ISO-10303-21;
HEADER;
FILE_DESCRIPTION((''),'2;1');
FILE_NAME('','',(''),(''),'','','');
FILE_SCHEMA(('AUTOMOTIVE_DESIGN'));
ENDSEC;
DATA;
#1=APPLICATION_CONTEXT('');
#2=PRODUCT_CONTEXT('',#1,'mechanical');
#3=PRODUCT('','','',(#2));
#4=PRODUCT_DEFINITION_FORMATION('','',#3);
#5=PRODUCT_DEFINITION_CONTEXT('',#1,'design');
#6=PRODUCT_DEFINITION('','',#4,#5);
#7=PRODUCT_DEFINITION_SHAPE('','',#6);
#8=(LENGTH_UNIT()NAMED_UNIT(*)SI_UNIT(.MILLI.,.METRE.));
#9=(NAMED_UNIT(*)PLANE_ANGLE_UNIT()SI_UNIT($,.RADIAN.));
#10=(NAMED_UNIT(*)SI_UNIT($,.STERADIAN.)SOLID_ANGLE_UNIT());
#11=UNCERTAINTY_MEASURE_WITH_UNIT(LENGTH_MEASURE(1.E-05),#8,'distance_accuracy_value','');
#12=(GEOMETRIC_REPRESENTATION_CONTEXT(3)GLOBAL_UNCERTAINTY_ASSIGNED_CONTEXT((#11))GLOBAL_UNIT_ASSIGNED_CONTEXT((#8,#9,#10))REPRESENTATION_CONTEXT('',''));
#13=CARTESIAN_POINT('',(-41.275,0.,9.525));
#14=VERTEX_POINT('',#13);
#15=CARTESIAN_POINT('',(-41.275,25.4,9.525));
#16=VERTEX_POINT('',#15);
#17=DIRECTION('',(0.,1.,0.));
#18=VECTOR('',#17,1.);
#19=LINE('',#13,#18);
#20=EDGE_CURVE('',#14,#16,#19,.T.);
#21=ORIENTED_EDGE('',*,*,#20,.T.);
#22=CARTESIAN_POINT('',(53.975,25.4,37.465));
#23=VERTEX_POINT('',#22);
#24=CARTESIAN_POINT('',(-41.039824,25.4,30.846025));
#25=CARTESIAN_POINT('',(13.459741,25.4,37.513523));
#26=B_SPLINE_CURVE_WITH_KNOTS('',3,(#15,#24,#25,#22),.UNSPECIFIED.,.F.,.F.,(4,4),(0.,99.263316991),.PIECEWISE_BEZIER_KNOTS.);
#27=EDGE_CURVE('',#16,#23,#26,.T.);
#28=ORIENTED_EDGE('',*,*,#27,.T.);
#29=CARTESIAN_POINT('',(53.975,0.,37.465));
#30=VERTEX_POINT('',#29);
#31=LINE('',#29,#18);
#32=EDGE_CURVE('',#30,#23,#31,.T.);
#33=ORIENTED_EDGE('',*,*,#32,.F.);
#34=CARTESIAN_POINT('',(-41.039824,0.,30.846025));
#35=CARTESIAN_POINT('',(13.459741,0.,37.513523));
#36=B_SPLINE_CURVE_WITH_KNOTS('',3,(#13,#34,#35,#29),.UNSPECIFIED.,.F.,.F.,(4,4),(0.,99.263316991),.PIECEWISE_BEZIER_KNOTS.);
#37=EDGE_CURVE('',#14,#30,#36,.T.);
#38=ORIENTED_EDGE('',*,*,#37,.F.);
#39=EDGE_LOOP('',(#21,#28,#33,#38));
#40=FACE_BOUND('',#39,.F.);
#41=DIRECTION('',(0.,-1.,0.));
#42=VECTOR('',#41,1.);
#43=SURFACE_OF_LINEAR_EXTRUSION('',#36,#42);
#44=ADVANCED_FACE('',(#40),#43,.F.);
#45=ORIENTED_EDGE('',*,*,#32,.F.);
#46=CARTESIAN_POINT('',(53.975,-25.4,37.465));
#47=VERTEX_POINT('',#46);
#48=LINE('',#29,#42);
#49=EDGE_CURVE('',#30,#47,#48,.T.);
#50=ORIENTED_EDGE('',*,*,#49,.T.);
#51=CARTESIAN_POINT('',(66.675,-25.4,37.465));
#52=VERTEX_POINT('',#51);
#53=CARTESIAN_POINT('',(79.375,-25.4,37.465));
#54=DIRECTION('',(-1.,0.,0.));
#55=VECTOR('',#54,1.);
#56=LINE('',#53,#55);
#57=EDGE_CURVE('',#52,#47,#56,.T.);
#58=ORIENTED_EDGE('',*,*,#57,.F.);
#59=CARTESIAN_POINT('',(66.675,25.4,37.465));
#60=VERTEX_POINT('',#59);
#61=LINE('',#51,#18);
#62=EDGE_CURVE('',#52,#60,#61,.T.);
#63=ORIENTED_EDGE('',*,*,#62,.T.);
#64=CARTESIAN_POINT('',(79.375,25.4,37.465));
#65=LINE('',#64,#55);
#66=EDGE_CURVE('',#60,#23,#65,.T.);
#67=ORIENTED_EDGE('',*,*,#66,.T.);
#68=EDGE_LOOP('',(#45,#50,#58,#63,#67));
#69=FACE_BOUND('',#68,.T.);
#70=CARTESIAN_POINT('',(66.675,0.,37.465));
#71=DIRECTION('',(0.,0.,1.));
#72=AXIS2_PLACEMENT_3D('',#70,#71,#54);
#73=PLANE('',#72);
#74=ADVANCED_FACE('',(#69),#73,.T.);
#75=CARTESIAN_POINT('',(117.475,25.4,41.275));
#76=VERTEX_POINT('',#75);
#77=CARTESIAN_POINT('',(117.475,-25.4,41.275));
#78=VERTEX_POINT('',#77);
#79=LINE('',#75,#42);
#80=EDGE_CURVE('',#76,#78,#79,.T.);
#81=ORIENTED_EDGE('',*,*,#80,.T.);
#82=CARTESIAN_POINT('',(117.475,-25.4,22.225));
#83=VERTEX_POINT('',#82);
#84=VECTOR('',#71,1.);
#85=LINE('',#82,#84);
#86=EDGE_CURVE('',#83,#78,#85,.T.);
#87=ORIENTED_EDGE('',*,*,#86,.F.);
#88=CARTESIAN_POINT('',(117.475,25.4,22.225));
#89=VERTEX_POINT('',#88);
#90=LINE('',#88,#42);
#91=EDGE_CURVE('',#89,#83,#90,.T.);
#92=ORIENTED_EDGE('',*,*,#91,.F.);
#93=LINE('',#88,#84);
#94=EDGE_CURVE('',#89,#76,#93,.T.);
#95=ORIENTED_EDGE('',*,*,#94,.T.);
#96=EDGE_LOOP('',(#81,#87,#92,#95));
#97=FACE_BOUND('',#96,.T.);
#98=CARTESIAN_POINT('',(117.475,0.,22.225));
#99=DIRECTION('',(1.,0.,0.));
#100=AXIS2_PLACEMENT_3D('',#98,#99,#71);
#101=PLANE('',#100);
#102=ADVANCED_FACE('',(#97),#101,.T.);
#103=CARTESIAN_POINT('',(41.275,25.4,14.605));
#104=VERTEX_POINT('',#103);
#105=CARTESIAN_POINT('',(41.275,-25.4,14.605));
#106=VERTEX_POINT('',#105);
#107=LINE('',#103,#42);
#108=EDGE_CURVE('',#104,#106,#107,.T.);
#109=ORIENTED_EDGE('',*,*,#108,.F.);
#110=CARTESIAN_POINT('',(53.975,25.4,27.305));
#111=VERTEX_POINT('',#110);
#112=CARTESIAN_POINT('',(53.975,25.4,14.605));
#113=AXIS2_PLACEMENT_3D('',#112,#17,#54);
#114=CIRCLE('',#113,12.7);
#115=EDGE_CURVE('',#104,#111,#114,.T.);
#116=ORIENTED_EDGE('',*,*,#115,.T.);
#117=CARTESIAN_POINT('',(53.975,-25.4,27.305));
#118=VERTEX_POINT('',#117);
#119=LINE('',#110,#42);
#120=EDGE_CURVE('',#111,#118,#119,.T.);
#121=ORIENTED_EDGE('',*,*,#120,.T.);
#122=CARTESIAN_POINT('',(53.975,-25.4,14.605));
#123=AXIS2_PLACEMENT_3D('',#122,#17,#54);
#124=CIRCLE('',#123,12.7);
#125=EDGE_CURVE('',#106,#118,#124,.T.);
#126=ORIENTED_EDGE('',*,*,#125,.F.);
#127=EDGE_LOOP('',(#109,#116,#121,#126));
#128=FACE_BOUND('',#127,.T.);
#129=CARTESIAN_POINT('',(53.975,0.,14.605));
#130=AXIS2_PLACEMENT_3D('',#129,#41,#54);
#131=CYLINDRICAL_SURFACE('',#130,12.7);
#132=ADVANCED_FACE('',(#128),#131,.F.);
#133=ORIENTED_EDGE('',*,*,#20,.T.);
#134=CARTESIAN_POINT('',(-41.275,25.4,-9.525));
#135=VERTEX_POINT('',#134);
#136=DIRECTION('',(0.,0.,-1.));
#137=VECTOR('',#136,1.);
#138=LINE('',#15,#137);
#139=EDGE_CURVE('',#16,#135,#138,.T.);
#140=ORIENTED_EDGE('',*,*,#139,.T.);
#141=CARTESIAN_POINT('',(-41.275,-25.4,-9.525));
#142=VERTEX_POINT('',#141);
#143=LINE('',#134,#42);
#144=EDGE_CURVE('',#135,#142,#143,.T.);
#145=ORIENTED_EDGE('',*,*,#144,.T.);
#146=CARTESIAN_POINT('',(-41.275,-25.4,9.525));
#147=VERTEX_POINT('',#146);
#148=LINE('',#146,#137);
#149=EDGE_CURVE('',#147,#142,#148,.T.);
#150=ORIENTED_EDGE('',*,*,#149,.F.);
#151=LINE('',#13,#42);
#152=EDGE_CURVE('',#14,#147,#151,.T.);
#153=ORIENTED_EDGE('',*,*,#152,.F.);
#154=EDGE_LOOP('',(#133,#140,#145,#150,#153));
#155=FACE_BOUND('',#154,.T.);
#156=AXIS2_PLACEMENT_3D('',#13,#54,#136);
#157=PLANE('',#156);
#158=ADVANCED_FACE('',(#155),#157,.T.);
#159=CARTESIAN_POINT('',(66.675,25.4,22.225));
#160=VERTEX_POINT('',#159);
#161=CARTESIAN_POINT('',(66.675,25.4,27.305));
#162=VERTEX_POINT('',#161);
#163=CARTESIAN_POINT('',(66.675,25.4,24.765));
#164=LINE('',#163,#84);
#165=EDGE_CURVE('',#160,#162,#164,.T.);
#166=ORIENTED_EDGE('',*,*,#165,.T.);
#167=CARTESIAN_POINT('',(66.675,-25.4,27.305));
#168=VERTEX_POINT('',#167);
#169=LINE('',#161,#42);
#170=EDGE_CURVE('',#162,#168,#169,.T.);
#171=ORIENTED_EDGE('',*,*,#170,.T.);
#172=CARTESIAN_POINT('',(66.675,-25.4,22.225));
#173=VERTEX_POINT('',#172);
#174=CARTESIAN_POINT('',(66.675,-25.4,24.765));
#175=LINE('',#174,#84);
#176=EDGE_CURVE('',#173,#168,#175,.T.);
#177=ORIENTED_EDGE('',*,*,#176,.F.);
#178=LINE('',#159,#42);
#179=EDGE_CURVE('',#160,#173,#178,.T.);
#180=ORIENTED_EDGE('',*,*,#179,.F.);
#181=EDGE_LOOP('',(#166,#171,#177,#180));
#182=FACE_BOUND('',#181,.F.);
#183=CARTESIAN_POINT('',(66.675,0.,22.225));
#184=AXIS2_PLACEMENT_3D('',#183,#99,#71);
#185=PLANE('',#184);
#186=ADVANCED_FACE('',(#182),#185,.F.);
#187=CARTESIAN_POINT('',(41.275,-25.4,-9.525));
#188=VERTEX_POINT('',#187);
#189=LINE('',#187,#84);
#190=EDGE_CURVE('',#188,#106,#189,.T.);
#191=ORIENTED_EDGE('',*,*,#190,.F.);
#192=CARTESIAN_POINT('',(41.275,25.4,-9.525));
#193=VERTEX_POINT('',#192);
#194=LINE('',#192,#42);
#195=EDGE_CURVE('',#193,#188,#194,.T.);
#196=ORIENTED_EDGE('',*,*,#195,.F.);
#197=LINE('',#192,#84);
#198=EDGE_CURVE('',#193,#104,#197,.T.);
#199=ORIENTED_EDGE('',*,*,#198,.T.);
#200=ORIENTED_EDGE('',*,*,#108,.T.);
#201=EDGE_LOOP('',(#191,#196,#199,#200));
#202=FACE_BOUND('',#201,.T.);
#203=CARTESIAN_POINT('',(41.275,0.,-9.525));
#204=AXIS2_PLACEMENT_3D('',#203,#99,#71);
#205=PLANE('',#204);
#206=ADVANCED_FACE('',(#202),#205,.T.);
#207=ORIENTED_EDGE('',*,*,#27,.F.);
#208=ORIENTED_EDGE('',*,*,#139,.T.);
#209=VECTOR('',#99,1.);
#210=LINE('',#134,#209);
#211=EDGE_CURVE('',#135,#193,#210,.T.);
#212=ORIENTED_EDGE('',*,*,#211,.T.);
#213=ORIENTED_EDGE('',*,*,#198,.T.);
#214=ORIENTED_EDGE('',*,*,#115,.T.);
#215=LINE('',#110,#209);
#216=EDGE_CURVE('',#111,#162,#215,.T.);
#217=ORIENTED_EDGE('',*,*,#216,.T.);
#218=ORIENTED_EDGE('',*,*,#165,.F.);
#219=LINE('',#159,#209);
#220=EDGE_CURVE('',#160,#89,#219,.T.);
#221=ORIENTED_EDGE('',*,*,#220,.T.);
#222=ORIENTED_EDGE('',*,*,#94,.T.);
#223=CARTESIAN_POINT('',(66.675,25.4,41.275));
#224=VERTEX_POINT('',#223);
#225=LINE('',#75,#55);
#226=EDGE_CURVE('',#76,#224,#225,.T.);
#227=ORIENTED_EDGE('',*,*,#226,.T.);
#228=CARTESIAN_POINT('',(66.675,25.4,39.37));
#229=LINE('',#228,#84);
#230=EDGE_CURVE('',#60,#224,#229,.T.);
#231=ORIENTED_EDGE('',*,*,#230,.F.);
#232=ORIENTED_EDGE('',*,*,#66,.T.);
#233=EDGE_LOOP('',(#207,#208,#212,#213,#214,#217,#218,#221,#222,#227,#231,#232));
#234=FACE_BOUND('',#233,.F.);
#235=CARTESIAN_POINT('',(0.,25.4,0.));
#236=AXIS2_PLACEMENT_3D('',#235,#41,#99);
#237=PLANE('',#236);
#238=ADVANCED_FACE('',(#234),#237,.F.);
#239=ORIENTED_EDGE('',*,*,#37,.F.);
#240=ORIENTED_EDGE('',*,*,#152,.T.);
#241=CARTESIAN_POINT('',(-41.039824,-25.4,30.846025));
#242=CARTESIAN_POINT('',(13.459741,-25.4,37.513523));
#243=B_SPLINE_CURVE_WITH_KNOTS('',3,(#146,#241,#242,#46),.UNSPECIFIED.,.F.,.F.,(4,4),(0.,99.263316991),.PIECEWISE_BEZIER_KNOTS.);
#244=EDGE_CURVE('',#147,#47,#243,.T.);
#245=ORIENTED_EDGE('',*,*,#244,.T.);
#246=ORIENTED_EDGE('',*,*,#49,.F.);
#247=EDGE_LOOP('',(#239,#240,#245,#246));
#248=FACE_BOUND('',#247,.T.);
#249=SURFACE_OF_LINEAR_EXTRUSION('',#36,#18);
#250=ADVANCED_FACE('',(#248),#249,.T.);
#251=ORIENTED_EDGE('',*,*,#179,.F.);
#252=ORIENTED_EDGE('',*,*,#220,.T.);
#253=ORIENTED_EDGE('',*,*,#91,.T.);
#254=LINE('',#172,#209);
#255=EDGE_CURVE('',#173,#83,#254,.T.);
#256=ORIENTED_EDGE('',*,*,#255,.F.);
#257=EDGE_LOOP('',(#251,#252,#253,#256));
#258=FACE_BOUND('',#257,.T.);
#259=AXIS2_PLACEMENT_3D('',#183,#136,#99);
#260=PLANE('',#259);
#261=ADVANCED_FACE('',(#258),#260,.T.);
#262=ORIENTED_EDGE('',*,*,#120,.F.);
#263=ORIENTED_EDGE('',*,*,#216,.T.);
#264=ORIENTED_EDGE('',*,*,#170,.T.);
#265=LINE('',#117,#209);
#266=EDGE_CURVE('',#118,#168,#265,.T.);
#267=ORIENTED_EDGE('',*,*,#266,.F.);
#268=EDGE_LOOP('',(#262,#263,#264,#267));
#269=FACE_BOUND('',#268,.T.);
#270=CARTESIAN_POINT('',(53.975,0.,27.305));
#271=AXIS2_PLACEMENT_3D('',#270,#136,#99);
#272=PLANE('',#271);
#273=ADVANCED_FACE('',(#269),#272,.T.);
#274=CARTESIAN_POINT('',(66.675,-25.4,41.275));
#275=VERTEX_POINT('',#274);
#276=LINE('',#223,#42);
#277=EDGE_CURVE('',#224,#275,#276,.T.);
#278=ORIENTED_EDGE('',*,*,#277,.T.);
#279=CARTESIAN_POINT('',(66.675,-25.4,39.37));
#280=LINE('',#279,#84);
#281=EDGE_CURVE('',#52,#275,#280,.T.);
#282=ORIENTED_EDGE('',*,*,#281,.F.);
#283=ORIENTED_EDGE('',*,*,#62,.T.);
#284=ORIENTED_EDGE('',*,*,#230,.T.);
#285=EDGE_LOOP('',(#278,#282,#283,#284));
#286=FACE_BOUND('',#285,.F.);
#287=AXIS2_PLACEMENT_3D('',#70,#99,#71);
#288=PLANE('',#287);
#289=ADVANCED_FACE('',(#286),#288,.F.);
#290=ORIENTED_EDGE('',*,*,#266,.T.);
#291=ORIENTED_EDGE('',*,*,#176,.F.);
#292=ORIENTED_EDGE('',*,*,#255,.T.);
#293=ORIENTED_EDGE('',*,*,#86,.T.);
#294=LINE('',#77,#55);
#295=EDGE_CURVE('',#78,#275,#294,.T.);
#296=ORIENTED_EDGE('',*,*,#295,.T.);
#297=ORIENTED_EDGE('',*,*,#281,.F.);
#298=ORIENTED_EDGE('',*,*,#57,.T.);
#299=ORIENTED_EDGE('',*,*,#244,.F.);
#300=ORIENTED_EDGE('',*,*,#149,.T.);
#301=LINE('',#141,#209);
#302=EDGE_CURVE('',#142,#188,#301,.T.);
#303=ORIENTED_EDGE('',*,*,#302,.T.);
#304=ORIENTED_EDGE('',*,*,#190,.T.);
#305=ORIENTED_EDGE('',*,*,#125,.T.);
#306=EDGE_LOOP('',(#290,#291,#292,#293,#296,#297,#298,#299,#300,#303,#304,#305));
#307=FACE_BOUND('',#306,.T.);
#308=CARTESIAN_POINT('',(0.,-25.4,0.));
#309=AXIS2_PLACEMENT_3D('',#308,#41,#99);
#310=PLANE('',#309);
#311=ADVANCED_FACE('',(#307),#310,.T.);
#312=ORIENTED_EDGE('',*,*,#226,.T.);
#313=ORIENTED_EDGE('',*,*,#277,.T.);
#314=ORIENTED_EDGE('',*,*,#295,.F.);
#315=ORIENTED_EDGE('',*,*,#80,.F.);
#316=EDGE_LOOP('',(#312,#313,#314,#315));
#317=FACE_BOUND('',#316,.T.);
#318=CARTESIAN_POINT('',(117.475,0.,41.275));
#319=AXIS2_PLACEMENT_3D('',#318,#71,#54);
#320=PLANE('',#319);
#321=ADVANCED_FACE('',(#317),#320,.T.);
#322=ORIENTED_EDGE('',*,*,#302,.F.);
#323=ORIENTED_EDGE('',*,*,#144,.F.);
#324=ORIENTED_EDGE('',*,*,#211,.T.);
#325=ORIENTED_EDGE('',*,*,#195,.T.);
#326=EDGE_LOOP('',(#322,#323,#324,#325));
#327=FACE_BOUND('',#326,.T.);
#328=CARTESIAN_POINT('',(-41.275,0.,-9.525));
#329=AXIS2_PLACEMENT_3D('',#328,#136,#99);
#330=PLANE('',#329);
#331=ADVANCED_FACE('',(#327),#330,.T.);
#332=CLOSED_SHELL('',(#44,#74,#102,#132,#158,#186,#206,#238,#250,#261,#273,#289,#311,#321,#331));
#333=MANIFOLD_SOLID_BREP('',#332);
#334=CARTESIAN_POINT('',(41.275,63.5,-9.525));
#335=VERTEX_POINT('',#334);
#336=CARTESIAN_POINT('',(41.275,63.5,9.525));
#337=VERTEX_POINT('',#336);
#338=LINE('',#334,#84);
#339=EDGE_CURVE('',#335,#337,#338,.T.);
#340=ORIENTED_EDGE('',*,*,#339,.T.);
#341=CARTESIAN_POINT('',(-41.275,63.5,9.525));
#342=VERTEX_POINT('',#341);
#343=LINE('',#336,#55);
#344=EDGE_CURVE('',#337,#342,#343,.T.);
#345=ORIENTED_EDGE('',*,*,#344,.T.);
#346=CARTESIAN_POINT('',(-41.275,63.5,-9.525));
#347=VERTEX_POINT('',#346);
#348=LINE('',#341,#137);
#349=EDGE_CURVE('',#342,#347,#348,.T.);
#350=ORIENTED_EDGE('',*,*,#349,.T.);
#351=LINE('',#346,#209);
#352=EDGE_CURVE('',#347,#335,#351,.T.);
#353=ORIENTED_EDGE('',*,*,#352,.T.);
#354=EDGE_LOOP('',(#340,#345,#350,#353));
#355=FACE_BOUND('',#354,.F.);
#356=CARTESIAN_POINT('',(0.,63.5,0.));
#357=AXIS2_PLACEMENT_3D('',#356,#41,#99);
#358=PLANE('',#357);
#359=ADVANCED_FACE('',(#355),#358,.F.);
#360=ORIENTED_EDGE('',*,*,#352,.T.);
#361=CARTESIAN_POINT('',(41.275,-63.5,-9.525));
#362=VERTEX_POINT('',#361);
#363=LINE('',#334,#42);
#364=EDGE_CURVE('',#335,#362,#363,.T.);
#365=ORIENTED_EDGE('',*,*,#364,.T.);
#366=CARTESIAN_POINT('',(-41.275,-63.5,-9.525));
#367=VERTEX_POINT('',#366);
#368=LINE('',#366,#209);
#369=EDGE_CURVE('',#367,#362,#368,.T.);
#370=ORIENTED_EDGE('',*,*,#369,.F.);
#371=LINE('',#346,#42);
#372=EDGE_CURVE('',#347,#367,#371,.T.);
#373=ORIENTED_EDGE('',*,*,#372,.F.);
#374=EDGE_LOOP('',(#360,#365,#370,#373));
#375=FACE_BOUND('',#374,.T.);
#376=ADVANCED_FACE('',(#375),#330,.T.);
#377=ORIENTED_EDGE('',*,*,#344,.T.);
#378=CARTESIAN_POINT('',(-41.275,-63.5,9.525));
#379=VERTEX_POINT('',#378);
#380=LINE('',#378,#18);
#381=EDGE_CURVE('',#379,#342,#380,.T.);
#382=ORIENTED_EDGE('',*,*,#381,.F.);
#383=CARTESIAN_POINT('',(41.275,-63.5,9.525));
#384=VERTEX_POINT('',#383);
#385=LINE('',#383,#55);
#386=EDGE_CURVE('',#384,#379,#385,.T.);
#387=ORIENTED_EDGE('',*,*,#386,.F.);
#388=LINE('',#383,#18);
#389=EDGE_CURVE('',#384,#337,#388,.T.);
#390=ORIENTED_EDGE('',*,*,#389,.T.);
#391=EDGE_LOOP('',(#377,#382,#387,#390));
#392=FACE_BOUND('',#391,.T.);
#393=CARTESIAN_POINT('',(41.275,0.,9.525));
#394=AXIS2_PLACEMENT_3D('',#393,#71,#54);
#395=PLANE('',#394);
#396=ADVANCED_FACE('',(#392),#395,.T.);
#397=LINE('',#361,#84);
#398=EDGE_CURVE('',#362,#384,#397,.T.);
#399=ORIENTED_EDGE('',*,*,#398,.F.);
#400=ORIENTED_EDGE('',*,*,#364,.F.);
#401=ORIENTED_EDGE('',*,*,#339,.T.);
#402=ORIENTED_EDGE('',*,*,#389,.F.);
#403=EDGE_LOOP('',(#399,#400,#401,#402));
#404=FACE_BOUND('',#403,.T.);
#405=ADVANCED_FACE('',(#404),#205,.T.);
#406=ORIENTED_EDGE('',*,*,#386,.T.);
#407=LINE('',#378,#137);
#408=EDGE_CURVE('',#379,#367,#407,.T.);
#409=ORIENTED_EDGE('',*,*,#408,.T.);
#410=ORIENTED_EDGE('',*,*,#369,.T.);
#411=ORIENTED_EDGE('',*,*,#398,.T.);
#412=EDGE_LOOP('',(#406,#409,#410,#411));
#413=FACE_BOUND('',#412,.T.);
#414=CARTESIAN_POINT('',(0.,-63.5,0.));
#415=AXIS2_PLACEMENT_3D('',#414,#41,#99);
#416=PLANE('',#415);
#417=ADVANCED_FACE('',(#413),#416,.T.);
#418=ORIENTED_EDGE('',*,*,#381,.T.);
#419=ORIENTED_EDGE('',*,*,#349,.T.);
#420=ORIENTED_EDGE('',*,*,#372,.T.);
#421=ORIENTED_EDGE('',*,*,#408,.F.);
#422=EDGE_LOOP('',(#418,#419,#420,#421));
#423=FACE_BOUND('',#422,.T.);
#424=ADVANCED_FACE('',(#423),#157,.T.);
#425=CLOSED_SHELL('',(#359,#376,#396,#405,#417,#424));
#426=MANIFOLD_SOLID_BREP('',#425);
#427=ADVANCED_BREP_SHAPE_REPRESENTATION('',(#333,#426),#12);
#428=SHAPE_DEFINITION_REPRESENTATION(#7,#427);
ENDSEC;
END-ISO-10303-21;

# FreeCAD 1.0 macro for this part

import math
import FreeCAD as App
import Part
import Sketcher
from FreeCAD import Vector
Q = App.Units.Quantity

doc = App.newDocument("Part")
body = doc.addObject("PartDesign::Body", "Body")

# Sketch on XZ plane
sketch1 = doc.addObject("Sketcher::SketchObject", "Sketch")
body.addObject(sketch1)
sketch1.AttachmentSupport = (doc.XZ_Plane, [""])
sketch1.MapMode = "FlatFace"
sketch1.addGeometry([
    Part.LineSegment(Vector(-41, 10, 0), Vector(-41, -10, 0)),
    Part.LineSegment(Vector(-41, -10, 0), Vector(41, -10, 0)),
    Part.LineSegment(Vector(41, -10, 0), Vector(41, 10, 0)),
    Part.LineSegment(Vector(41, 10, 0), Vector(-41, 10, 0)),
], False)
sketch1.addConstraint([
    Sketcher.Constraint("Coincident", 0, 2, 1, 1),
    Sketcher.Constraint("Coincident", 1, 2, 2, 1),
    Sketcher.Constraint("Coincident", 2, 2, 3, 1),
    Sketcher.Constraint("Coincident", 3, 2, 0, 1),
    Sketcher.Constraint("Vertical", 0),
    Sketcher.Constraint("Horizontal", 1),
    Sketcher.Constraint("Vertical", 2),
    Sketcher.Constraint("Horizontal", 3),
    Sketcher.Constraint("Symmetric", 0, 2, 2, 2, -1, 1),
    Sketcher.Constraint("DistanceX", 1, 1, 1, 2, Q("3.25 in")),
    Sketcher.Constraint("DistanceY", 0, 2, 0, 1, Q("0.75 in")),
])
pad1 = doc.addObject("PartDesign::Pad", "Pad")
body.addObject(pad1)
pad1.Profile = sketch1
pad1.Length = Q("5 in")
pad1.Midplane = True
body2 = doc.addObject("PartDesign::Body", "Body001")

# Sketch on XZ plane
sketch2 = doc.addObject("Sketcher::SketchObject", "Sketch001")
body2.addObject(sketch2)
sketch2.AttachmentSupport = (doc.getObject("XZ_Plane001"), [""])
sketch2.MapMode = "FlatFace"
sketch2.addGeometry([
    Part.LineSegment(Vector(-41.275, 9.525, 0), Vector(-41.275, -9.525, 0)),  # 0
    Part.LineSegment(Vector(-41.275, -9.525, 0), Vector(41.275, -9.525, 0)),  # 1
    Part.LineSegment(Vector(41.275, -9.525, 0), Vector(41.275, 14.605, 0)),  # 2
    Part.ArcOfCircle(Part.Circle(Vector(53.975, 14.605, 0), Vector(0, 0, 1), 12.7), math.radians(90), math.radians(180)),  # 3
    Part.LineSegment(Vector(53.975, 27.305, 0), Vector(66.675, 27.305, 0)),  # 4
    Part.LineSegment(Vector(66.675, 27.305, 0), Vector(66.675, 22.225, 0)),  # 5
    Part.LineSegment(Vector(66.675, 22.225, 0), Vector(117.475, 22.225, 0)),  # 6
    Part.LineSegment(Vector(117.475, 22.225, 0), Vector(117.475, 41.275, 0)),  # 7
    Part.LineSegment(Vector(117.475, 41.275, 0), Vector(66.675, 41.275, 0)),  # 8
    Part.LineSegment(Vector(66.675, 41.275, 0), Vector(66.675, 37.465, 0)),  # 9
    Part.LineSegment(Vector(66.675, 37.465, 0), Vector(53.975, 37.465, 0)),  # 10
    Part.BSplineCurve([Vector(-41.275, 9.525, 0), Vector(-41.039824, 30.846025, 0), Vector(13.459741, 37.513523, 0), Vector(53.975, 37.465, 0)], [4, 4], [0, 99.263316991], False, 3, [1, 1, 1, 1], False),  # 11
], False)
sketch2.addConstraint([
    Sketcher.Constraint("Block", 11),
    Sketcher.Constraint("Coincident", 0, 2, 1, 1),
    Sketcher.Constraint("Coincident", 1, 2, 2, 1),
    Sketcher.Constraint("Tangent", 2, 2, 3, 2),
    Sketcher.Constraint("Tangent", 3, 1, 4, 1),
    Sketcher.Constraint("Coincident", 4, 2, 5, 1),
    Sketcher.Constraint("Coincident", 5, 2, 6, 1),
    Sketcher.Constraint("Coincident", 6, 2, 7, 1),
    Sketcher.Constraint("Coincident", 7, 2, 8, 1),
    Sketcher.Constraint("Coincident", 8, 2, 9, 1),
    Sketcher.Constraint("Coincident", 9, 2, 10, 1),
    Sketcher.Constraint("Coincident", 10, 2, 11, 2),
    Sketcher.Constraint("Coincident", 11, 1, 0, 1),
    Sketcher.Constraint("Vertical", 0),
    Sketcher.Constraint("Horizontal", 1),
    Sketcher.Constraint("Vertical", 2),
    Sketcher.Constraint("Horizontal", 4),
    Sketcher.Constraint("Vertical", 5),
    Sketcher.Constraint("Horizontal", 6),
    Sketcher.Constraint("Vertical", 7),
    Sketcher.Constraint("Horizontal", 8),
    Sketcher.Constraint("Vertical", 9),
    Sketcher.Constraint("Horizontal", 10),
    Sketcher.Constraint("Vertical", 5, 2, 8, 2),
    Sketcher.Constraint("Vertical", 3, 1, 10, 2),
    Sketcher.Constraint("Equal", 0, 7),
    Sketcher.Constraint("Radius", 3, Q("0.5 in")),
    Sketcher.Constraint("DistanceX", 6, 1, 6, 2, Q("2 in")),
    Sketcher.Constraint("DistanceX", 4, 1, 4, 2, Q("0.5 in")),
    Sketcher.Constraint("DistanceY", 5, 2, 5, 1, Q("0.2 in")),
    Sketcher.Constraint("DistanceY", 0, 2, 0, 1, Q("0.75 in")),
    Sketcher.Constraint("DistanceY", 2, 1, 2, 2, Q("0.95 in")),
])
pad2 = doc.addObject("PartDesign::Pad", "Pad001")
body2.addObject(pad2)
pad2.Profile = sketch2
pad2.Length = Q("2 in")
pad2.Midplane = True

doc.recompute()
